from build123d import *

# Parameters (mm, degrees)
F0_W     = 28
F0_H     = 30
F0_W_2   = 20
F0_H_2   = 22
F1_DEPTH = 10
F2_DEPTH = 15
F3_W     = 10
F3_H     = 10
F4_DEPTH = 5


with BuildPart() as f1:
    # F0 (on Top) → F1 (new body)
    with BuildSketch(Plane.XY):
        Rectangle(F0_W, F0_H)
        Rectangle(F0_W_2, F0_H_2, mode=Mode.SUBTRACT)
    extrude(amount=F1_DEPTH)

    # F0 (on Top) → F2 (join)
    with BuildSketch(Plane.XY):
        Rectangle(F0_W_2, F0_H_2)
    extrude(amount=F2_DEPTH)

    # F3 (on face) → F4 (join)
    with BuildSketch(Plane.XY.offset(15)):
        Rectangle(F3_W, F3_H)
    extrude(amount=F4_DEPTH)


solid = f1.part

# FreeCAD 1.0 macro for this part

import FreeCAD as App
import Part
import Sketcher
from FreeCAD import Vector
Q = App.Units.Quantity

doc = App.newDocument("Part")
body = doc.addObject("PartDesign::Body", "Body")

sketch1 = body.newObject("Sketcher::SketchObject", "Sketch")
sketch1.AttachmentSupport = (doc.getObject("XY_Plane"), [""])
sketch1.MapMode = "FlatFace"
sketch1.addGeometry([
    Part.LineSegment(Vector(-14, 15, 0), Vector(-14, -15, 0)),
    Part.LineSegment(Vector(-14, -15, 0), Vector(14, -15, 0)),
    Part.LineSegment(Vector(14, -15, 0), Vector(14, 15, 0)),
    Part.LineSegment(Vector(14, 15, 0), Vector(-14, 15, 0)),
    Part.LineSegment(Vector(10, -11, 0), Vector(-10, -11, 0)),
    Part.LineSegment(Vector(-10, -11, 0), Vector(-10, 11, 0)),
    Part.LineSegment(Vector(-10, 11, 0), Vector(10, 11, 0)),
    Part.LineSegment(Vector(10, 11, 0), Vector(10, -11, 0)),
], False)
sketch1.addConstraint([
    Sketcher.Constraint("Coincident", 0, 2, 1, 1),
    Sketcher.Constraint("Coincident", 1, 2, 2, 1),
    Sketcher.Constraint("Coincident", 2, 2, 3, 1),
    Sketcher.Constraint("Coincident", 3, 2, 0, 1),
    Sketcher.Constraint("Coincident", 4, 2, 5, 1),
    Sketcher.Constraint("Coincident", 5, 2, 6, 1),
    Sketcher.Constraint("Coincident", 6, 2, 7, 1),
    Sketcher.Constraint("Coincident", 7, 2, 4, 1),
    Sketcher.Constraint("Vertical", 0),
    Sketcher.Constraint("Horizontal", 1),
    Sketcher.Constraint("Vertical", 2),
    Sketcher.Constraint("Horizontal", 3),
    Sketcher.Constraint("Horizontal", 4),
    Sketcher.Constraint("Vertical", 5),
    Sketcher.Constraint("Horizontal", 6),
    Sketcher.Constraint("Vertical", 7),
    Sketcher.Constraint("Symmetric", 0, 2, 2, 2, -1, 1),
    Sketcher.Constraint("Symmetric", 4, 2, 6, 2, -1, 1),
    Sketcher.Constraint("DistanceX", 1, 1, 1, 2, Q("28 mm")),
    Sketcher.Constraint("DistanceX", 4, 2, 4, 1, Q("20 mm")),
    Sketcher.Constraint("DistanceY", 0, 2, 0, 1, Q("30 mm")),
    Sketcher.Constraint("DistanceY", 5, 1, 5, 2, Q("22 mm")),
])
pad1 = body.newObject("PartDesign::Pad", "Pad")
pad1.Profile = sketch1
pad1.Length = 10

sketch2 = body.newObject("Sketcher::SketchObject", "Sketch001")
sketch2.AttachmentSupport = (doc.getObject("XY_Plane"), [""])
sketch2.MapMode = "FlatFace"
sketch2.addGeometry([
    Part.LineSegment(Vector(-10, 11, 0), Vector(-10, -11, 0)),
    Part.LineSegment(Vector(-10, -11, 0), Vector(10, -11, 0)),
    Part.LineSegment(Vector(10, -11, 0), Vector(10, 11, 0)),
    Part.LineSegment(Vector(10, 11, 0), Vector(-10, 11, 0)),
], False)
sketch2.addConstraint([
    Sketcher.Constraint("Coincident", 0, 2, 1, 1),
    Sketcher.Constraint("Coincident", 1, 2, 2, 1),
    Sketcher.Constraint("Coincident", 2, 2, 3, 1),
    Sketcher.Constraint("Coincident", 3, 2, 0, 1),
    Sketcher.Constraint("Vertical", 0),
    Sketcher.Constraint("Horizontal", 1),
    Sketcher.Constraint("Vertical", 2),
    Sketcher.Constraint("Horizontal", 3),
    Sketcher.Constraint("Symmetric", 0, 2, 2, 2, -1, 1),
    Sketcher.Constraint("DistanceX", 1, 1, 1, 2, Q("20 mm")),
    Sketcher.Constraint("DistanceY", 0, 2, 0, 1, Q("22 mm")),
])
pad2 = body.newObject("PartDesign::Pad", "Pad001")
pad2.Profile = sketch2
pad2.Length = 15

sketch3 = body.newObject("Sketcher::SketchObject", "Sketch002")
sketch3.AttachmentSupport = (doc.getObject("XY_Plane"), [""])
sketch3.MapMode = "FlatFace"
sketch3.AttachmentOffset = App.Placement(Vector(0, 0, 15), App.Rotation())
sketch3.addGeometry([
    Part.LineSegment(Vector(-5, 5, 0), Vector(-5, -5, 0)),
    Part.LineSegment(Vector(-5, -5, 0), Vector(5, -5, 0)),
    Part.LineSegment(Vector(5, -5, 0), Vector(5, 5, 0)),
    Part.LineSegment(Vector(5, 5, 0), Vector(-5, 5, 0)),
], False)
sketch3.addConstraint([
    Sketcher.Constraint("Coincident", 0, 2, 1, 1),
    Sketcher.Constraint("Coincident", 1, 2, 2, 1),
    Sketcher.Constraint("Coincident", 2, 2, 3, 1),
    Sketcher.Constraint("Coincident", 3, 2, 0, 1),
    Sketcher.Constraint("Vertical", 0),
    Sketcher.Constraint("Horizontal", 1),
    Sketcher.Constraint("Vertical", 2),
    Sketcher.Constraint("Horizontal", 3),
    Sketcher.Constraint("Symmetric", 0, 2, 2, 2, -1, 1),
    Sketcher.Constraint("Equal", 3, 0),
    Sketcher.Constraint("DistanceX", 1, 1, 1, 2, Q("10 mm")),
])
pad3 = body.newObject("PartDesign::Pad", "Pad002")
pad3.Profile = sketch3
pad3.Length = 5

doc.recompute()
